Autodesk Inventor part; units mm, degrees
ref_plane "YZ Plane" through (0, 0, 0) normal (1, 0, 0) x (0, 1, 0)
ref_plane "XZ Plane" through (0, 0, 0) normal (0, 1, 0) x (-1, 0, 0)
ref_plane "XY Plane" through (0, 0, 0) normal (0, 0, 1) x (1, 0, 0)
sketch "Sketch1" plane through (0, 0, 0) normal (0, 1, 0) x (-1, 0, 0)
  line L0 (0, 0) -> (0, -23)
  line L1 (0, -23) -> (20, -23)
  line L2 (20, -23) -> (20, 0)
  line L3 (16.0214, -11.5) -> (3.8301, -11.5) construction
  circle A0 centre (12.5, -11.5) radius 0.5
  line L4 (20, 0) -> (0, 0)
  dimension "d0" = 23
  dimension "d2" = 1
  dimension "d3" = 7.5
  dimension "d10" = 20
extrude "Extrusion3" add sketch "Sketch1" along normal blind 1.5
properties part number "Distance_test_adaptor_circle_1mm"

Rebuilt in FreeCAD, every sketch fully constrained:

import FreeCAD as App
import Part
import Sketcher

doc = App.newDocument("Part")
params = doc.addObject("Spreadsheet::Sheet", "Params")
for row, (alias, value) in enumerate([
    ("sketch1_diameter", "1 mm"),
    ("sketch1_width", "20 mm"),
    ("sketch1_height", "23 mm"),
    ("pad1_length", "1.5 mm"),
], start=1):
    params.set(f"A{row}", alias)
    params.set(f"B{row}", "=" + value)
    params.setAlias(f"B{row}", alias)

body = doc.addObject("PartDesign::Body", "Body")

sketch1 = doc.addObject("Sketcher::SketchObject", "Sketch")
body.addObject(sketch1)
sketch1.AttachmentSupport = (doc.XZ_Plane, [""])
sketch1.MapMode = "FlatFace"
sketch1.addGeometry(Part.LineSegment(App.Vector(-20, 0, 0), App.Vector(0, 0, 0)), False)
sketch1.addGeometry(Part.LineSegment(App.Vector(0, 0, 0), App.Vector(0, -23, 0)), False)
sketch1.addGeometry(Part.LineSegment(App.Vector(0, -23, 0), App.Vector(-20, -23, 0)), False)
sketch1.addGeometry(Part.LineSegment(App.Vector(-20, -23, 0), App.Vector(-20, 0, 0)), False)
sketch1.addGeometry(Part.Circle(App.Vector(-12.5, -11.5, 0), App.Vector(0, 0, 1), 0.5), False)
sketch1.addConstraint(Sketcher.Constraint("Coincident", 0, 2, 1, 1))
sketch1.addConstraint(Sketcher.Constraint("Coincident", 1, 2, 2, 1))
sketch1.addConstraint(Sketcher.Constraint("Coincident", 2, 2, 3, 1))
sketch1.addConstraint(Sketcher.Constraint("Coincident", 3, 2, 0, 1))
sketch1.addConstraint(Sketcher.Constraint("Horizontal", 0))
sketch1.addConstraint(Sketcher.Constraint("Vertical", 1))
sketch1.addConstraint(Sketcher.Constraint("Horizontal", 2))
sketch1.addConstraint(Sketcher.Constraint("Vertical", 3))
sketch1.addConstraint(Sketcher.Constraint("Coincident", 0, 2, -1, 1))
sketch1.addConstraint(Sketcher.Constraint("Diameter", 4, 1.0))
sketch1.addConstraint(Sketcher.Constraint("DistanceX", 0, 1, 0, 2, 20.0))
sketch1.addConstraint(Sketcher.Constraint("DistanceY", 1, 2, 1, 1, 23.0))
sketch1.addConstraint(Sketcher.Constraint("DistanceX", 2, 2, 4, 3, 7.5))
sketch1.addConstraint(Sketcher.Constraint("DistanceY", 4, 3, -1, 1, 11.5))
sketch1.setExpression("Constraints[9]", "Params.sketch1_diameter")
sketch1.setExpression("Constraints[10]", "Params.sketch1_width")
sketch1.setExpression("Constraints[11]", "Params.sketch1_height")
pad1 = doc.addObject("PartDesign::Pad", "Pad")
body.addObject(pad1)
pad1.Profile = sketch1
pad1.setExpression("Length", "Params.pad1_length")
pad1.Reversed = True

doc.recompute()
